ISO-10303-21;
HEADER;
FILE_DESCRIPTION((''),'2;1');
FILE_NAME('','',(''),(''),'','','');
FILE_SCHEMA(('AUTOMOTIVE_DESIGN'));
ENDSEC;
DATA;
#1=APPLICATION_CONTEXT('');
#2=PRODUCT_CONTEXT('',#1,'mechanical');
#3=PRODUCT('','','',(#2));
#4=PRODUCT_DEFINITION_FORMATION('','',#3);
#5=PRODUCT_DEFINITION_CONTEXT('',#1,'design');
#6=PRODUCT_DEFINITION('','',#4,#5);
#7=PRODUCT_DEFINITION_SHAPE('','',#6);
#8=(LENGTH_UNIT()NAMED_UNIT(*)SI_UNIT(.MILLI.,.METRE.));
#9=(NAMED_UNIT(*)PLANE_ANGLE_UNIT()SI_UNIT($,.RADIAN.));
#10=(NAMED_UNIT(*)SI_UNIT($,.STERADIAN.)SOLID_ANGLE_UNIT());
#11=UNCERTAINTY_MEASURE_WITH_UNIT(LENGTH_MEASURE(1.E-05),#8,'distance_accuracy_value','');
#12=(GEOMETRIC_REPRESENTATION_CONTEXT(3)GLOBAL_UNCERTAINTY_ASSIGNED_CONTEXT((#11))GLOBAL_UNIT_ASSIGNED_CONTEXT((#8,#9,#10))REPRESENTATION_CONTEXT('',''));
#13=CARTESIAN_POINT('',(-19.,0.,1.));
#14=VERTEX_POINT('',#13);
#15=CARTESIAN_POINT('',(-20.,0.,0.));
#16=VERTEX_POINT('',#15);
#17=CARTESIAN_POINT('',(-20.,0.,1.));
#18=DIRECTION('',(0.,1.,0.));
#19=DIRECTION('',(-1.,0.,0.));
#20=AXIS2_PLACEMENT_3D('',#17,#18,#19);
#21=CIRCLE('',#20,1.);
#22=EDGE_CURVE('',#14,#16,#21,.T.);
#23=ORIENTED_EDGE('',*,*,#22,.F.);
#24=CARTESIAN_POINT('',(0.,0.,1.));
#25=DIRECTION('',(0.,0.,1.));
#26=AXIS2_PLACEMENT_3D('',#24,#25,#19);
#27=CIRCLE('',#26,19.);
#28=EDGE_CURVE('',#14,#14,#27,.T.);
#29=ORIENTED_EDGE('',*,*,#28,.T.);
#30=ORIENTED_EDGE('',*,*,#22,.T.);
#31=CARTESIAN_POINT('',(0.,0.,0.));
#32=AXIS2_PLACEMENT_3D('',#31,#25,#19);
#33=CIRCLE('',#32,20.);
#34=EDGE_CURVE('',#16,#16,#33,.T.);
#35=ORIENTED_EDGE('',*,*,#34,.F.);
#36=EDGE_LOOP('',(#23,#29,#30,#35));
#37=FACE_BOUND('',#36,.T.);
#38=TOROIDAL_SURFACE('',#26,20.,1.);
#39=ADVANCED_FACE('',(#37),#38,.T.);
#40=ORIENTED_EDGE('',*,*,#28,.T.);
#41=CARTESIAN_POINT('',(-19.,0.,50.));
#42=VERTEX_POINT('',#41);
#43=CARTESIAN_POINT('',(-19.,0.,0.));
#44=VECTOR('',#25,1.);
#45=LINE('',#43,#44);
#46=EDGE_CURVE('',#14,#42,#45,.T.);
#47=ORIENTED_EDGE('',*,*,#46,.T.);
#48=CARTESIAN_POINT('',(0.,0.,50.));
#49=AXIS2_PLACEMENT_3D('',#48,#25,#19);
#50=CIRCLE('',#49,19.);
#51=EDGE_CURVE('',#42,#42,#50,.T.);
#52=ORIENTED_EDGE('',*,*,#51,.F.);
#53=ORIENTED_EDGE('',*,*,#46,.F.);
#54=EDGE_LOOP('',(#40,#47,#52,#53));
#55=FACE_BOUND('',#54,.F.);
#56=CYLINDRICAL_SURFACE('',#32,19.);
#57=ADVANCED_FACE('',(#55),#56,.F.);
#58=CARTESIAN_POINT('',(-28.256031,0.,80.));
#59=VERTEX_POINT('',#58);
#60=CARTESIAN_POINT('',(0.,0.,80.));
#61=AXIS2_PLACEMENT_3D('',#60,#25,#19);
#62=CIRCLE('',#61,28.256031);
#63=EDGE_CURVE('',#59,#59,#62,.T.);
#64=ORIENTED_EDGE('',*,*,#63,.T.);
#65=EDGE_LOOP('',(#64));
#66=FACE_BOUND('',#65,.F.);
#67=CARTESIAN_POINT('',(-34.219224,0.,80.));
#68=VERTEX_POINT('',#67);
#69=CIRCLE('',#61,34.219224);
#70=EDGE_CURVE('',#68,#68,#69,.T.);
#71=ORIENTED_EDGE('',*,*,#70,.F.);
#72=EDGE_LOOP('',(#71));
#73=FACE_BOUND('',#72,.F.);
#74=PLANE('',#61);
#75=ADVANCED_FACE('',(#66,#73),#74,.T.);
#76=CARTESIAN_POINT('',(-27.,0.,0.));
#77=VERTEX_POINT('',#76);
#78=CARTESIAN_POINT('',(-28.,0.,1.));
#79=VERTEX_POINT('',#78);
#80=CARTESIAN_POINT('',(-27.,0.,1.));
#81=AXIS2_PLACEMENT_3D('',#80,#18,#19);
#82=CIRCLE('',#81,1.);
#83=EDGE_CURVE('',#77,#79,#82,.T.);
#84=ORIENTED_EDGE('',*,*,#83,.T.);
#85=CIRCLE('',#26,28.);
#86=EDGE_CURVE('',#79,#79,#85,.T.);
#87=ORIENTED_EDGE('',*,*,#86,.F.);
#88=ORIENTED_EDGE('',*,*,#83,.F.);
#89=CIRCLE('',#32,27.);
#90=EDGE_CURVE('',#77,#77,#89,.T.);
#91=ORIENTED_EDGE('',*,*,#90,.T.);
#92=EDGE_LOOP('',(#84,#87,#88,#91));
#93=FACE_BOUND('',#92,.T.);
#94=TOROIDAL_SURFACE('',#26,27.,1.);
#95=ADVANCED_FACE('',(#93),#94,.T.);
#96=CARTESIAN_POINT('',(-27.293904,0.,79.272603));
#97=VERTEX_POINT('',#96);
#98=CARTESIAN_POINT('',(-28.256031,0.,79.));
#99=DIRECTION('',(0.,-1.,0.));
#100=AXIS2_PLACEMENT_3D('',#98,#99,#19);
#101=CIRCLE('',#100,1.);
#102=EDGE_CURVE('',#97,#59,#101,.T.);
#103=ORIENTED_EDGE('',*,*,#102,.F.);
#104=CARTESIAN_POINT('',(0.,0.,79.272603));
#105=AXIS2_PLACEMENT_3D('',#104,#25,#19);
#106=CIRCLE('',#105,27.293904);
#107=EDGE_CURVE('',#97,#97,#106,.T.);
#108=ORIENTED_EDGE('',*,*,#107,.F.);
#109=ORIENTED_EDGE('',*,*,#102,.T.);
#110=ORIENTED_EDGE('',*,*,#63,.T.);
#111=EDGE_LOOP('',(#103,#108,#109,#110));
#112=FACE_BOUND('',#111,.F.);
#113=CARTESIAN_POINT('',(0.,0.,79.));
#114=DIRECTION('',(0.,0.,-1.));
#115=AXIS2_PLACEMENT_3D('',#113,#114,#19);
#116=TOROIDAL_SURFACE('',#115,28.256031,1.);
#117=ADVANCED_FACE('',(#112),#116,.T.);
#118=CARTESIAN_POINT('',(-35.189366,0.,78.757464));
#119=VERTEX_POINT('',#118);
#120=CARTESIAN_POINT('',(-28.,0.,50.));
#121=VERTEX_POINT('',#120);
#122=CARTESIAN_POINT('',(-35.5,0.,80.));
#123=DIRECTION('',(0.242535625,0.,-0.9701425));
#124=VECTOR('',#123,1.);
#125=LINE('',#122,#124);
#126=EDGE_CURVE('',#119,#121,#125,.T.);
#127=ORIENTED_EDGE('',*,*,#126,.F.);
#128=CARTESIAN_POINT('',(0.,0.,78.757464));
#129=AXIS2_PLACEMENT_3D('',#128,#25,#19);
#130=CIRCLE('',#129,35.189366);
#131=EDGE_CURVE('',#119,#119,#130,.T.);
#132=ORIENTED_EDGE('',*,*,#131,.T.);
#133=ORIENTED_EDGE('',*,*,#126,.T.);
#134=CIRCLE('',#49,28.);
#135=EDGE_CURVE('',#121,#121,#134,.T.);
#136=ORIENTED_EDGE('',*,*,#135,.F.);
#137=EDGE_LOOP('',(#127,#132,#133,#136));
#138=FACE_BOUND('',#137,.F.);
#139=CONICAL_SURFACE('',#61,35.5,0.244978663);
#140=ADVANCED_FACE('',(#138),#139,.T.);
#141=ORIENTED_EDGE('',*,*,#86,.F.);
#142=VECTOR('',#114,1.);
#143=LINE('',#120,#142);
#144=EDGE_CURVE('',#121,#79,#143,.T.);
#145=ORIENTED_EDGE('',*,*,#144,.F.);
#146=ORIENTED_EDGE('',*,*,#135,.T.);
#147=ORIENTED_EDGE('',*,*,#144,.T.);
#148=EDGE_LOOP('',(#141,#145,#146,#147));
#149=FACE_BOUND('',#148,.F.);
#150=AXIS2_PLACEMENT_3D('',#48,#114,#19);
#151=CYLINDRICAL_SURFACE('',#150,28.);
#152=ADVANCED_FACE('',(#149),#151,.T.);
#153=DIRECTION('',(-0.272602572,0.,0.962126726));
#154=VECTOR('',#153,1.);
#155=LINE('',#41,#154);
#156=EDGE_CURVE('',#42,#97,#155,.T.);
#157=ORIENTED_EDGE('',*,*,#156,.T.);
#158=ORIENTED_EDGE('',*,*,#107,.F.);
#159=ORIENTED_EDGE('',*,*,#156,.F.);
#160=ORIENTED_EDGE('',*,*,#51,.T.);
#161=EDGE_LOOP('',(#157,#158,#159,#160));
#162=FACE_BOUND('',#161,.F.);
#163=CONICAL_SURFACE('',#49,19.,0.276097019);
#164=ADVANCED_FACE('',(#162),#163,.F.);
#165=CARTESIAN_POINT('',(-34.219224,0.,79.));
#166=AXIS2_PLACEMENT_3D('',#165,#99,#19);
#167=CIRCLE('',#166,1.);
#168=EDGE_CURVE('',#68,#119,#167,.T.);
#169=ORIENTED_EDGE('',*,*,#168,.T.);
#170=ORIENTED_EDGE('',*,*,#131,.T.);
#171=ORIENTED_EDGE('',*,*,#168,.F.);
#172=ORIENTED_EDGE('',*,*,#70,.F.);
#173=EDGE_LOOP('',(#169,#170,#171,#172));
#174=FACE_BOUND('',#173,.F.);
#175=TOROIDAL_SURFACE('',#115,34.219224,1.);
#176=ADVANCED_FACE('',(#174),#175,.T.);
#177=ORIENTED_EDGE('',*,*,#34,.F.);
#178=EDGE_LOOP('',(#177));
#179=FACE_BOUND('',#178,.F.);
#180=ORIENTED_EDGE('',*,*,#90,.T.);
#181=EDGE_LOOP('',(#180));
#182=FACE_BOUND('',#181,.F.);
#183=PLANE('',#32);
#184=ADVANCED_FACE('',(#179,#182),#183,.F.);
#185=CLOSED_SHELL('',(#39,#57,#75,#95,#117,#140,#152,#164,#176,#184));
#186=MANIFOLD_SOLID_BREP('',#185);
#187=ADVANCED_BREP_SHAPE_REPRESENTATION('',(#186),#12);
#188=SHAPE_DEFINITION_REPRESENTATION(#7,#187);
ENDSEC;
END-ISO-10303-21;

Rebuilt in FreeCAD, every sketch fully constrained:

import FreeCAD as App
import Part
import Sketcher


def edges_at(feature, points):
    """Names of the edges that pass closest to the given points."""
    edges = feature.Shape.Edges
    near = lambda p: min(range(len(edges)), key=lambda i: edges[i].distToShape(Part.Vertex(*p))[0])
    return sorted({f"Edge{near(p) + 1}" for p in points})


def add_polygon(sketch, points):
    """Adds a closed chain of lines whose ends are joined by coincident constraints."""
    first, n = sketch.GeometryCount, len(points)
    for a, b in zip(points, points[1:] + points[:1]):
        sketch.addGeometry(Part.LineSegment(App.Vector(*a, 0), App.Vector(*b, 0)), False)
    for i in range(n):
        sketch.addConstraint(Sketcher.Constraint("Coincident", first + i, 2, first + (i + 1) % n, 1))

doc = App.newDocument("Part")
body = doc.addObject("PartDesign::Body", "Body")

sketch1 = doc.addObject("Sketcher::SketchObject", "Sketch")
body.addObject(sketch1)
sketch1.AttachmentSupport = (doc.XZ_Plane, [""])
sketch1.MapMode = "FlatFace"
add_polygon(sketch1, [(-28, 50), (-28, 0), (-19, 0), (-19, 50), (-27.5, 80), (-35.5, 80)])
sketch1.addConstraint([
    Sketcher.Constraint("Vertical", 0),
    Sketcher.Constraint("Horizontal", 1),
    Sketcher.Constraint("Vertical", 2),
    Sketcher.Constraint("Horizontal", 4),
    Sketcher.Constraint("PointOnObject", 0, 2, -1),
    Sketcher.Constraint("Horizontal", 2, 2, 5, 2),
    Sketcher.Constraint("DistanceX", 1, 1, 1, 2, 9.0),
    Sketcher.Constraint("DistanceX", 4, 2, 4, 1, 8.0),
    Sketcher.Constraint("DistanceY", 0, 2, 0, 1, 50.0),
    Sketcher.Constraint("DistanceX", 0, 2, -1, 1, 28.0),
    Sketcher.Constraint("DistanceY", -1, 1, 3, 2, 80.0),
    Sketcher.Constraint("DistanceX", 3, 2, -1, 1, 27.5),
])
revolution = doc.addObject("PartDesign::Revolution", "Revolution")
body.addObject(revolution)
revolution.Profile = sketch1
revolution.ReferenceAxis = (sketch1, ["V_Axis"])
revolution.Angle = 360
doc.recompute()

fillet = doc.addObject("PartDesign::Fillet", "Fillet")
body.addObject(fillet)
fillet.Base = (revolution, edges_at(revolution, [(27.5, 0, 80)]))
fillet.Radius = 1
doc.recompute()

fillet2 = doc.addObject("PartDesign::Fillet", "Fillet001")
body.addObject(fillet2)
fillet2.Base = (fillet, edges_at(fillet, [(35.5, 0, 80), (28, 0, 0), (19, 0, 0)]))
fillet2.Radius = 1

doc.recompute()
